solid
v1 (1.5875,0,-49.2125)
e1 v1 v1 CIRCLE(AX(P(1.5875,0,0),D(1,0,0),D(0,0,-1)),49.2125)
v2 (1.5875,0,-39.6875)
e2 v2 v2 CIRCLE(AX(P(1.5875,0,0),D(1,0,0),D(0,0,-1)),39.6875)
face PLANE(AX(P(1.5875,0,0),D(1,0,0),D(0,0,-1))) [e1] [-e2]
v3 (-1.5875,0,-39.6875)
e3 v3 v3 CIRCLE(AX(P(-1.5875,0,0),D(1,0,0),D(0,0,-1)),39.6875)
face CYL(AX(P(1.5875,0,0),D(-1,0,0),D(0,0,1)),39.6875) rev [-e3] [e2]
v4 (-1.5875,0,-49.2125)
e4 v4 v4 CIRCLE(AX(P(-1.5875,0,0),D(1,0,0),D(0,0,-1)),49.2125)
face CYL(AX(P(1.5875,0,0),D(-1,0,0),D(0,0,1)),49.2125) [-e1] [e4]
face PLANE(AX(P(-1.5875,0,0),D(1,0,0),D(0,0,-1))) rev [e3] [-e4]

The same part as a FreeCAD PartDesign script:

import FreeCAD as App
import Part
import Sketcher

V = App.Vector
Q = App.Units.Quantity

doc = App.newDocument("Part")
body = doc.addObject("PartDesign::Body", "Body")

# Sketch on YZ plane
sketch1 = doc.addObject("Sketcher::SketchObject", "Sketch")
body.addObject(sketch1)
sketch1.AttachmentSupport = (doc.YZ_Plane, [""])
sketch1.MapMode = "FlatFace"
sketch1.addGeometry([
    Part.Circle(V(0, 0, 0), V(0, 0, 1), 49),
    Part.Circle(V(0, 0, 0), V(0, 0, 1), 40),
], False)
sketch1.addConstraint([
    Sketcher.Constraint("Coincident", 0, 3, -1, 1),
    Sketcher.Constraint("Coincident", 1, 3, -1, 1),
    Sketcher.Constraint("Diameter", 0, Q("3.875 in")),
    Sketcher.Constraint("Diameter", 1, Q("3.125 in")),
])
pad1 = doc.addObject("PartDesign::Pad", "Pad")
body.addObject(pad1)
pad1.Profile = sketch1
pad1.Length = Q("0.125 in")
pad1.Midplane = True

doc.recompute()
